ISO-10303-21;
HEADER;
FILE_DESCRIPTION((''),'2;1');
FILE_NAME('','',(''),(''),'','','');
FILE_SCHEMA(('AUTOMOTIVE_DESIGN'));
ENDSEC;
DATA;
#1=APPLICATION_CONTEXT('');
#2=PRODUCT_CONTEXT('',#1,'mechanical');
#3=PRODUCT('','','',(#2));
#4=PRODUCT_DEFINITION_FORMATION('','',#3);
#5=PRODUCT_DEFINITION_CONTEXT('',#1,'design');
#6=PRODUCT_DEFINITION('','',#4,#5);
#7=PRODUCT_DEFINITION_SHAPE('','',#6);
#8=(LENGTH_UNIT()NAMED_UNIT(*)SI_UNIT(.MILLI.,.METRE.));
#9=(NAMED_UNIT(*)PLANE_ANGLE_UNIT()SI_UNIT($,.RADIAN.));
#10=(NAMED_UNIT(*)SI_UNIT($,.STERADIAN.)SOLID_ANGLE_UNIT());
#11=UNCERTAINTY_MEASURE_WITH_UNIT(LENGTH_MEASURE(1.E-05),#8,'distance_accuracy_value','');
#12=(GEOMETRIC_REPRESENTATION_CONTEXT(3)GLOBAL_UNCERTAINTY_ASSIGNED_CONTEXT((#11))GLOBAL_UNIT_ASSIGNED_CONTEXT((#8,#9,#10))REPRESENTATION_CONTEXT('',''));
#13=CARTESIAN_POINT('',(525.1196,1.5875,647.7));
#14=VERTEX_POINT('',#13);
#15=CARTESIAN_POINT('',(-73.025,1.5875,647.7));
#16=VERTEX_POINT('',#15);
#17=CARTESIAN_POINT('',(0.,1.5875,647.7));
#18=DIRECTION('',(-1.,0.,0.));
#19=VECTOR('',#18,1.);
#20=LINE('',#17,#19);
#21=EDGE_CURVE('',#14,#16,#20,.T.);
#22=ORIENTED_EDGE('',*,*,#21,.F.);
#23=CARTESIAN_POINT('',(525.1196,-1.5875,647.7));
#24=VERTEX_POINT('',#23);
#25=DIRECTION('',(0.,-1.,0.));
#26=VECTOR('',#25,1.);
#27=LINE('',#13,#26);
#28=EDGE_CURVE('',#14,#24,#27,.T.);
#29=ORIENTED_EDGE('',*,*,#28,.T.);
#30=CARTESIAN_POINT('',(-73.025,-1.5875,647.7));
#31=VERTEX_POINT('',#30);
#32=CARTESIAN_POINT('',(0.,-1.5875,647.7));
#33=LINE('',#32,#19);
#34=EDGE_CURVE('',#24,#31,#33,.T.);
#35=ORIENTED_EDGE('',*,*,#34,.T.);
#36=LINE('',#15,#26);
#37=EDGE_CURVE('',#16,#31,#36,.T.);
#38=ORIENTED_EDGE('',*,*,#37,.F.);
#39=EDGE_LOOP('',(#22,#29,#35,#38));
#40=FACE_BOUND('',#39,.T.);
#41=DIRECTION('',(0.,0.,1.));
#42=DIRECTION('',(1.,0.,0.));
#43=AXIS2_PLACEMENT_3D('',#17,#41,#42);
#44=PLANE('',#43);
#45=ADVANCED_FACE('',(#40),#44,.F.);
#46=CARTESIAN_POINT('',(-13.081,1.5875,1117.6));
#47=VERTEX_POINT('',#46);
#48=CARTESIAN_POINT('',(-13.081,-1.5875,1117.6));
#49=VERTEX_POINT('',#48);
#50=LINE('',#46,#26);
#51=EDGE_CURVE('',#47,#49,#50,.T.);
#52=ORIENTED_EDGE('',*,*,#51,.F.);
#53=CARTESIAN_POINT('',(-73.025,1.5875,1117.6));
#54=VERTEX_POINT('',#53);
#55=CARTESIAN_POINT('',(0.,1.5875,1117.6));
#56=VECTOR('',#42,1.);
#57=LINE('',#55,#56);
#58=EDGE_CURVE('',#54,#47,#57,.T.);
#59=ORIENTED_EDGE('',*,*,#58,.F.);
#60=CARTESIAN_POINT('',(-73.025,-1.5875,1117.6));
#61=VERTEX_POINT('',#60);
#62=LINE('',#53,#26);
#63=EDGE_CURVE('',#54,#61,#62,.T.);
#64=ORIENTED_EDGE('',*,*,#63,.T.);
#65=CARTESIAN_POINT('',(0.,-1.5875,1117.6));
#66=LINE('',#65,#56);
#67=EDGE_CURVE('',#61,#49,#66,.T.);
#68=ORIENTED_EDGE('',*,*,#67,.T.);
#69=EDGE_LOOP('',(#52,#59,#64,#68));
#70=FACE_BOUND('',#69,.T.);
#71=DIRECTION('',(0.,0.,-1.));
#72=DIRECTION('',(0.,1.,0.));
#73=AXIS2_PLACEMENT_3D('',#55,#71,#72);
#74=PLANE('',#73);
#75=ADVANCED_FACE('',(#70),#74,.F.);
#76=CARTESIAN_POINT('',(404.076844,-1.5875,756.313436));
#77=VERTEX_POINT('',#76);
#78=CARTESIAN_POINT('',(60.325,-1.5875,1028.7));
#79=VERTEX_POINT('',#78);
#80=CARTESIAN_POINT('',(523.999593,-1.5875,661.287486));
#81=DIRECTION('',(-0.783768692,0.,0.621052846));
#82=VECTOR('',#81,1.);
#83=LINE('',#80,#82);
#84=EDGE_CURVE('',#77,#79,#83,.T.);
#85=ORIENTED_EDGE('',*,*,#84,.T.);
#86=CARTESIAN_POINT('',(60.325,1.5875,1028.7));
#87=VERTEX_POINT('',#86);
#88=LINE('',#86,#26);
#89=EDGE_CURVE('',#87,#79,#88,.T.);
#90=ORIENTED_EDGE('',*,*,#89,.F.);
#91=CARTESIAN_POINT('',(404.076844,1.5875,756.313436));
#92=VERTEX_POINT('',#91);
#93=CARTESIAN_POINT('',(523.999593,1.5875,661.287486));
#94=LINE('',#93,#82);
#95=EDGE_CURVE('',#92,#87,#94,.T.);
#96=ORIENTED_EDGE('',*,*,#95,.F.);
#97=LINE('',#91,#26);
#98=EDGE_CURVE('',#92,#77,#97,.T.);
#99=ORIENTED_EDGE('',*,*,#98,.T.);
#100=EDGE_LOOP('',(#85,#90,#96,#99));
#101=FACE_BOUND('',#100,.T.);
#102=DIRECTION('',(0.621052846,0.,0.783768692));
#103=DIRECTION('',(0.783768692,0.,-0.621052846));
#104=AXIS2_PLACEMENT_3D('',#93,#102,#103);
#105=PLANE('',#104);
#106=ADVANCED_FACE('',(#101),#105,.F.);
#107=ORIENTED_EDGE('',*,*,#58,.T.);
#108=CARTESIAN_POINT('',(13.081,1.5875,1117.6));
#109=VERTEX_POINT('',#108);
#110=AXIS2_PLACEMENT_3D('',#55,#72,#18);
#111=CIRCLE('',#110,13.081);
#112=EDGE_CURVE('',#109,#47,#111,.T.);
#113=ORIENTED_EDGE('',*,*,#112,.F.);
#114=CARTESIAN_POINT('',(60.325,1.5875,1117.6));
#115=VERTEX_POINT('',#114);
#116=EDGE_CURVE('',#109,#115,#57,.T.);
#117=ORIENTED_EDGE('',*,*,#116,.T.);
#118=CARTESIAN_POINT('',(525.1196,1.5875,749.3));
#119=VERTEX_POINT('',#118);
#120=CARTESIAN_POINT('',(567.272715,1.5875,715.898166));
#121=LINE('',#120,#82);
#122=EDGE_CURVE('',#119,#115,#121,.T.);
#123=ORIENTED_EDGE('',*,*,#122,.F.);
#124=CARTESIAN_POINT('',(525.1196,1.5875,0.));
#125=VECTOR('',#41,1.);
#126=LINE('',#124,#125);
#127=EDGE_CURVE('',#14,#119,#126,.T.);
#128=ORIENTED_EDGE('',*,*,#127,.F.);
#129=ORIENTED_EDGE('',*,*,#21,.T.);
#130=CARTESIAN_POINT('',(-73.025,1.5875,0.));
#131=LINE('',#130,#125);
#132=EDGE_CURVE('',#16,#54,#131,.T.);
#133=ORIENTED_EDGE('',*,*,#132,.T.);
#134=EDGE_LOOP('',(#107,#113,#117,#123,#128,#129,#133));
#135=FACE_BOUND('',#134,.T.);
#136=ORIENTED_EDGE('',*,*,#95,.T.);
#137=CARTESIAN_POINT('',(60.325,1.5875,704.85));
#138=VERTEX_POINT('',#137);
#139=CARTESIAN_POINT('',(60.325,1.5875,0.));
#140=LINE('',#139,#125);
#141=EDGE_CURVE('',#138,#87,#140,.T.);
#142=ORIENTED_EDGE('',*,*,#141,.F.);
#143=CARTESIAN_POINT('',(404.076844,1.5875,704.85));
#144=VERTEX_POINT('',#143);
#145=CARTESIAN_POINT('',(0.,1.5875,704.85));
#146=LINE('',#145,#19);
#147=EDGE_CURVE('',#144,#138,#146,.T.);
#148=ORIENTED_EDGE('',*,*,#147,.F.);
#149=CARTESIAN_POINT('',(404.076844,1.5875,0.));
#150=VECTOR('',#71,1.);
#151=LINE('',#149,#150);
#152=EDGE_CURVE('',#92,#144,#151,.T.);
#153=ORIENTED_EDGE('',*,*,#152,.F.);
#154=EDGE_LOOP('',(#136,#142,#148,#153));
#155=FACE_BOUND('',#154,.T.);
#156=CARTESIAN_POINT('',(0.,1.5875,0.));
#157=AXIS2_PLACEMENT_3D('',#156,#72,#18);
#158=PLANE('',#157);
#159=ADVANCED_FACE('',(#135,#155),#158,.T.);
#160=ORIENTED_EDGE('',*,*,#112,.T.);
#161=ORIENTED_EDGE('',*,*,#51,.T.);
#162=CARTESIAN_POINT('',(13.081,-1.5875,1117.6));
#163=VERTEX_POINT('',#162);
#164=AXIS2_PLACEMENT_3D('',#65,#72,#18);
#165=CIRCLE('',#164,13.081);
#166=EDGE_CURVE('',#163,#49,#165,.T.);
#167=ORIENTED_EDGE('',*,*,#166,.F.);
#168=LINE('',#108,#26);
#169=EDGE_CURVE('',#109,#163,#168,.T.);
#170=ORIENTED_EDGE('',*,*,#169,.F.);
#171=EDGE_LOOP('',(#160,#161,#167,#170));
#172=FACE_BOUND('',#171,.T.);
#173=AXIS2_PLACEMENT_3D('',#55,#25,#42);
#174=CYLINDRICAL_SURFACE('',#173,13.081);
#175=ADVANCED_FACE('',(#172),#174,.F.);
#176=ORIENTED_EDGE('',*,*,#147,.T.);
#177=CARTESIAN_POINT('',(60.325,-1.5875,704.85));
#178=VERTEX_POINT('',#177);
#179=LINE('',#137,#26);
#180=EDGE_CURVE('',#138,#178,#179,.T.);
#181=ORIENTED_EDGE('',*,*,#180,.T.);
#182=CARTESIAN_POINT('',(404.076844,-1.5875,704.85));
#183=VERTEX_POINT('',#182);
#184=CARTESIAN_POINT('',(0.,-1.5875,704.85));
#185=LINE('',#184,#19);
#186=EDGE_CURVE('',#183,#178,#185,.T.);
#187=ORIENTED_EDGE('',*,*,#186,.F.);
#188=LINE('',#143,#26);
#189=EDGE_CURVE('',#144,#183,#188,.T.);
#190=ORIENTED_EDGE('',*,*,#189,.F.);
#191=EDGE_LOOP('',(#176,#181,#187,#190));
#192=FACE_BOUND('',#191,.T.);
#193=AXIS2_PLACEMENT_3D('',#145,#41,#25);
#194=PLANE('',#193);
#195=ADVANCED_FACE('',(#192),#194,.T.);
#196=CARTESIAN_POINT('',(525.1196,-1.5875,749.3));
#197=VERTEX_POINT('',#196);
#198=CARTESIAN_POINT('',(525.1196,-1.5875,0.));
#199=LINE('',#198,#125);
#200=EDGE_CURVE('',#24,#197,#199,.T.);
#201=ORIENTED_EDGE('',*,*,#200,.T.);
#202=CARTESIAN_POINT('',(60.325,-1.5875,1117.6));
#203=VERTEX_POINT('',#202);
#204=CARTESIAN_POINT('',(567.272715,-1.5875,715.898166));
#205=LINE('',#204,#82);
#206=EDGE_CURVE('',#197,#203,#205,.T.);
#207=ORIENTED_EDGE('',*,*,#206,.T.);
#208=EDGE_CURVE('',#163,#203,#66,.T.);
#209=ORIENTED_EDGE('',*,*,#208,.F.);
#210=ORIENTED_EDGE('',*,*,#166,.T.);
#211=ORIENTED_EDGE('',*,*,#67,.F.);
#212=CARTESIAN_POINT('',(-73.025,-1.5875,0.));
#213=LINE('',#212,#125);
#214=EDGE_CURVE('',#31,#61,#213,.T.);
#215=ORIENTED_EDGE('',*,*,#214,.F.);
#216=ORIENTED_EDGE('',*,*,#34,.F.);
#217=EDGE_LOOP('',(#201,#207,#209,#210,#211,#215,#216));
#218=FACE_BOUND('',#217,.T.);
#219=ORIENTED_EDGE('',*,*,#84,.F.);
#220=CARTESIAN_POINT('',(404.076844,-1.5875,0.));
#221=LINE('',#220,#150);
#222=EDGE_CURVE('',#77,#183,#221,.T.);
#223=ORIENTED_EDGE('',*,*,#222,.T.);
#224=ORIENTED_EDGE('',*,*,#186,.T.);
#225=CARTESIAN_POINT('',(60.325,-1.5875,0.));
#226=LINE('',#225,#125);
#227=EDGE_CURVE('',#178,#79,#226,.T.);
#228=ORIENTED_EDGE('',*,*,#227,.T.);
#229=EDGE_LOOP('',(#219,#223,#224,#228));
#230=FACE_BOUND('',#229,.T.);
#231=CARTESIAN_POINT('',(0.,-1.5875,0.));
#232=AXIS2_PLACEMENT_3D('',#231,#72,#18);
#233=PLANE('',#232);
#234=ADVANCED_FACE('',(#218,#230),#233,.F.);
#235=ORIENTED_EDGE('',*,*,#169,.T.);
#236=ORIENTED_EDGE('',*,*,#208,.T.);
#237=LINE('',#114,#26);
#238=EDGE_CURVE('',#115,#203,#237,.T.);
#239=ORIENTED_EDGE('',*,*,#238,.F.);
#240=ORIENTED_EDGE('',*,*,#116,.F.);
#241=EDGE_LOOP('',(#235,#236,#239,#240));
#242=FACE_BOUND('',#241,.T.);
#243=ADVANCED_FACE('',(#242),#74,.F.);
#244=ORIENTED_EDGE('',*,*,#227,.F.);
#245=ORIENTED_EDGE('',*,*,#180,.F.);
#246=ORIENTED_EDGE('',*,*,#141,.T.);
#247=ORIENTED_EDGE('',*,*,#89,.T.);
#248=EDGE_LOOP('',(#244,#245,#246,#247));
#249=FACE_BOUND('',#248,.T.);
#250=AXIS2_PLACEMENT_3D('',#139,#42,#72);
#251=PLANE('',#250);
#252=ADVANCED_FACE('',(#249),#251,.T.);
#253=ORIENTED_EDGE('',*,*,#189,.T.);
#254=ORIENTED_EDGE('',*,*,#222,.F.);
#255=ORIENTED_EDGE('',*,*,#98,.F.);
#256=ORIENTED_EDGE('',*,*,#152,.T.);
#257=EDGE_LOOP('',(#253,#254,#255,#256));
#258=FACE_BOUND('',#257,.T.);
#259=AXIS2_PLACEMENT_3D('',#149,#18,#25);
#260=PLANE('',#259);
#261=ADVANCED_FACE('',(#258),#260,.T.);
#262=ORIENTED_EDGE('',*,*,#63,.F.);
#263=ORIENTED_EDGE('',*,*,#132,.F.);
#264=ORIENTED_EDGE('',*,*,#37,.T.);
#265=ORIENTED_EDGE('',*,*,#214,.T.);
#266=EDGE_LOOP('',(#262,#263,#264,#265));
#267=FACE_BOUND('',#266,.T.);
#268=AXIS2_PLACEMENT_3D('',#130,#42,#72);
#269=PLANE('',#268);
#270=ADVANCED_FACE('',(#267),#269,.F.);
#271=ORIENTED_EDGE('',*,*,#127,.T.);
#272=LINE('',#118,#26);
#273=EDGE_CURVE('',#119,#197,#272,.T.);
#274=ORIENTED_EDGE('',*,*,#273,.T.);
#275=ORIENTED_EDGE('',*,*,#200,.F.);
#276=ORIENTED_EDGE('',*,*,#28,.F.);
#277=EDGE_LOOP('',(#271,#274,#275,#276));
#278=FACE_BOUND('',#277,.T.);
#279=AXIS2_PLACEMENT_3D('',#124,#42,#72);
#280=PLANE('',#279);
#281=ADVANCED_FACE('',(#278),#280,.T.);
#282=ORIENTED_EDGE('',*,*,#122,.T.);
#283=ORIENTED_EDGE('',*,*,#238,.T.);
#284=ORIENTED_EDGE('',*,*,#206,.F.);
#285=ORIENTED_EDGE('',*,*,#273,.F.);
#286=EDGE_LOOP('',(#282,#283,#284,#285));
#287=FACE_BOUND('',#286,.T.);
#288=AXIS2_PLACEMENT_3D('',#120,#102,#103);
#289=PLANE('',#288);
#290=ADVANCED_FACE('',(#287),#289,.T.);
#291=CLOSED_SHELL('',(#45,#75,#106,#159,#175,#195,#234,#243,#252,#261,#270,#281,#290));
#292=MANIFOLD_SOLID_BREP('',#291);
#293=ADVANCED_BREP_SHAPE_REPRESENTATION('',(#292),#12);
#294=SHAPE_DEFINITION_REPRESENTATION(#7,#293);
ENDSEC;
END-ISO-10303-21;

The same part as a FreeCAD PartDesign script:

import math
import FreeCAD as App
import Part
import Sketcher
Q = App.Units.Quantity


def add_polygon(sketch, points):
    """Adds a closed chain of lines whose ends are joined by coincident constraints."""
    first, n = sketch.GeometryCount, len(points)
    for a, b in zip(points, points[1:] + points[:1]):
        sketch.addGeometry(Part.LineSegment(App.Vector(*a, 0), App.Vector(*b, 0)), False)
    for i in range(n):
        sketch.addConstraint(Sketcher.Constraint("Coincident", first + i, 2, first + (i + 1) % n, 1))

doc = App.newDocument("Part")
body = doc.addObject("PartDesign::Body", "Body")

# Sketch on XZ plane
sketch1 = body.newObject("Sketcher::SketchObject", "Sketch")
sketch1.AttachmentSupport = (doc.getObject("XZ_Plane"), [""])
sketch1.MapMode = "FlatFace"
sketch1.addGeometry(Part.LineSegment(App.Vector(60, 1118, 0), App.Vector(525, 749, 0)), False)  # 0
sketch1.addGeometry(Part.LineSegment(App.Vector(525, 749, 0), App.Vector(525, 648, 0)), False)  # 1
sketch1.addGeometry(Part.LineSegment(App.Vector(525, 648, 0), App.Vector(-73, 648, 0)), False)  # 2
sketch1.addGeometry(Part.LineSegment(App.Vector(-73, 648, 0), App.Vector(-73, 1118, 0)), False)  # 3
sketch1.addGeometry(Part.LineSegment(App.Vector(-73, 1118, 0), App.Vector(-13, 1118, 0)), False)  # 4
sketch1.addGeometry(Part.ArcOfCircle(Part.Circle(App.Vector(0, 1118, 0), App.Vector(0, 0, 1), 13), math.radians(180), math.radians(360)), False)  # 5
sketch1.addGeometry(Part.LineSegment(App.Vector(13, 1118, 0), App.Vector(60, 1118, 0)), False)  # 6
add_polygon(sketch1, [(404, 756), (60, 1029), (60, 705), (404, 705)])  # lines 7-10
sketch1.addConstraint([
    Sketcher.Constraint("Coincident", 0, 2, 1, 1),
    Sketcher.Constraint("Coincident", 1, 2, 2, 1),
    Sketcher.Constraint("Coincident", 2, 2, 3, 1),
    Sketcher.Constraint("Coincident", 3, 2, 4, 1),
    Sketcher.Constraint("Coincident", 4, 2, 5, 1),
    Sketcher.Constraint("Coincident", 5, 2, 6, 1),
    Sketcher.Constraint("Coincident", 6, 2, 0, 1),
    Sketcher.Constraint("Vertical", 1),
    Sketcher.Constraint("Horizontal", 2),
    Sketcher.Constraint("Vertical", 3),
    Sketcher.Constraint("Horizontal", 4),
    Sketcher.Constraint("Horizontal", 6),
    Sketcher.Constraint("Vertical", 8),
    Sketcher.Constraint("Horizontal", 9),
    Sketcher.Constraint("Vertical", 10),
    Sketcher.Constraint("Symmetric", 4, 2, 5, 2, -2),
    Sketcher.Constraint("Parallel", 0, 7),
    Sketcher.Constraint("Horizontal", 5, 3, 3, 2),
    Sketcher.Constraint("Vertical", 6, 2, 7, 2),
    Sketcher.Constraint("DistanceY", 1, 2, 1, 1, Q("4 in")),
    Sketcher.Constraint("DistanceY", 3, 1, 3, 2, Q("18.5 in")),
    Sketcher.Constraint("DistanceY", -1, 1, 5, 3, Q("44 in")),
    Sketcher.Constraint("Radius", 5, Q("0.515 in")),
    Sketcher.Constraint("DistanceX", 4, 1, 4, 2, Q("2.36 in")),
    Sketcher.Constraint("DistanceX", 6, 1, 6, 2, Q("1.86 in")),
    Sketcher.Constraint("DistanceY", 8, 2, 8, 1, Q("12.75 in")),
    Sketcher.Constraint("DistanceY", -1, 1, 7, 2, Q("40.5 in")),
    Sketcher.Constraint("DistanceX", 2, 2, 2, 1, Q("23.549 in")),
    Sketcher.Constraint("DistanceX", 9, 1, 9, 2, Q("343.751844 mm")),
])
pad1 = body.newObject("PartDesign::Pad", "Pad")
pad1.Profile = sketch1
pad1.Length = Q("0.125 in")
pad1.Midplane = True

doc.recompute()
